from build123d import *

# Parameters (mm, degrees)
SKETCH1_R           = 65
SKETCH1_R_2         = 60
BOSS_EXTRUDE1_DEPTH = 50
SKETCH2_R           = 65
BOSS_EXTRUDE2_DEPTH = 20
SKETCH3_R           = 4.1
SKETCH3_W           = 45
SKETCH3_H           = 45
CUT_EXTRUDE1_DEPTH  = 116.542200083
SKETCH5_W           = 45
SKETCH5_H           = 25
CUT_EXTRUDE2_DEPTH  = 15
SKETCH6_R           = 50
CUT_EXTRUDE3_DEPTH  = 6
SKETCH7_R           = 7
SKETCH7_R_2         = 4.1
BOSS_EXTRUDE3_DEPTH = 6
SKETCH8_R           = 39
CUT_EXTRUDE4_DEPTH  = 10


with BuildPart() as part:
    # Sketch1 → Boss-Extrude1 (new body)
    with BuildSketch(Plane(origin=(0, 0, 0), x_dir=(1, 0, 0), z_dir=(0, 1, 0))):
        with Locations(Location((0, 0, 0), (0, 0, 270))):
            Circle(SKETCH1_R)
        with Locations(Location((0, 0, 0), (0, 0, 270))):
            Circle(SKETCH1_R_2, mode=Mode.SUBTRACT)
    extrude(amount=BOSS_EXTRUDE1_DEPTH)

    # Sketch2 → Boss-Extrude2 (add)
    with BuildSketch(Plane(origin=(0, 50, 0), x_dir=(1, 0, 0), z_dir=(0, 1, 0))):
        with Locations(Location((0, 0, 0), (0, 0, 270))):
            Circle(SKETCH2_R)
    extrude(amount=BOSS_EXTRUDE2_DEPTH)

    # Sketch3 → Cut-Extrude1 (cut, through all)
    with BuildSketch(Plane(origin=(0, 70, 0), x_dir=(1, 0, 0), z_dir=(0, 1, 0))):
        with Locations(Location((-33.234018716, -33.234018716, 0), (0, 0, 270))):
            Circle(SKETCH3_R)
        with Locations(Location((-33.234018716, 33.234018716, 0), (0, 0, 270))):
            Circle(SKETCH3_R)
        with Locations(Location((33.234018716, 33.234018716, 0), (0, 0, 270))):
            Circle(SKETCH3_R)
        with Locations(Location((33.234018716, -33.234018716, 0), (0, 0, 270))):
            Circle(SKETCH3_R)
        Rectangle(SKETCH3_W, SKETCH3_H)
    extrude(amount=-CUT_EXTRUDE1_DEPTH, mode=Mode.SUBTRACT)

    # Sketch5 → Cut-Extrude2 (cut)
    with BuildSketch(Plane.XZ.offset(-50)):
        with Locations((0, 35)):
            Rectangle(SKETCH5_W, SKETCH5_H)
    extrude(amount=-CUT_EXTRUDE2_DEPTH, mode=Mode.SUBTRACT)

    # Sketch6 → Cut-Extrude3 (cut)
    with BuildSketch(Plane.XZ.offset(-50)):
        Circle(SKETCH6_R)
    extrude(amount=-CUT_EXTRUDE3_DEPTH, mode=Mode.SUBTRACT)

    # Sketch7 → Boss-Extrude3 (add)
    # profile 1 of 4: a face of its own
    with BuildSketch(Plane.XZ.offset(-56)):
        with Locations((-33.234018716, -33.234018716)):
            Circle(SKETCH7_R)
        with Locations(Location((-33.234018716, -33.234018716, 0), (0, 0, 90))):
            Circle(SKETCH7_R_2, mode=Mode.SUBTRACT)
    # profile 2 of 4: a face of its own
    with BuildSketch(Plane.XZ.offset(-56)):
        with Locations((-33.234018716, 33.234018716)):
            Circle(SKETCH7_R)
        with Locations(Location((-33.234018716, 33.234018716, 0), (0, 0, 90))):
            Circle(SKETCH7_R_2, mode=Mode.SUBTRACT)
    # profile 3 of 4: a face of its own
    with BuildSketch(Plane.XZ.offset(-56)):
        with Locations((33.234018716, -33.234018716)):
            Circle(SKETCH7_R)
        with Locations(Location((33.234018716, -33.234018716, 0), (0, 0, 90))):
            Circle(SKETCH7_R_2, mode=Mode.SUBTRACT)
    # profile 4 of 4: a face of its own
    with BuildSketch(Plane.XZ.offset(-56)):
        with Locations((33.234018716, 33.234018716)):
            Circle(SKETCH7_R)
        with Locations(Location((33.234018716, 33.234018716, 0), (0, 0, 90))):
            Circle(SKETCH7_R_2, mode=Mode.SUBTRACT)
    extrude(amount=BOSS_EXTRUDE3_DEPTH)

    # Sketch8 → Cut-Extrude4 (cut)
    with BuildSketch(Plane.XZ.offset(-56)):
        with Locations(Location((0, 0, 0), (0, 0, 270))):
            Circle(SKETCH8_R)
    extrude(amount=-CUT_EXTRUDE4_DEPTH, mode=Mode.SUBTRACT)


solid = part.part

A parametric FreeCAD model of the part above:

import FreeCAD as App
import Part
import Sketcher
from FreeCAD import Vector

doc = App.newDocument("Part")
body = doc.addObject("PartDesign::Body", "Body")

# Sketch on XZ plane
sketch1 = body.newObject("Sketcher::SketchObject", "Sketch")
sketch1.AttachmentSupport = (doc.getObject("XZ_Plane"), [""])
sketch1.MapMode = "FlatFace"
sketch1.addGeometry([
    Part.Circle(Vector(0, 0, 0), Vector(0, 0, 1), 65),
    Part.Circle(Vector(0, 0, 0), Vector(0, 0, 1), 60),
], False)
sketch1.addConstraint([
    Sketcher.Constraint("Coincident", 0, 3, -1, 1),
    Sketcher.Constraint("Coincident", 1, 3, -1, 1),
    Sketcher.Constraint("Diameter", 0, 130.0),
    Sketcher.Constraint("Diameter", 1, 120.0),
])
pad1 = body.newObject("PartDesign::Pad", "Pad")
pad1.Profile = sketch1
pad1.Length = 50
pad1.Reversed = True

# Sketch on XZ plane
sketch2 = body.newObject("Sketcher::SketchObject", "Sketch001")
sketch2.AttachmentSupport = (doc.getObject("XZ_Plane"), [""])
sketch2.MapMode = "FlatFace"
sketch2.AttachmentOffset = App.Placement(Vector(0, 0, -50), App.Rotation())
sketch2.addGeometry(Part.Circle(Vector(0, 0, 0), Vector(0, 0, 1), 65), False)
sketch2.addConstraint([
    Sketcher.Constraint("Coincident", 0, 3, -1, 1),
    Sketcher.Constraint("Diameter", 0, 130.0),
])
pad2 = body.newObject("PartDesign::Pad", "Pad001")
pad2.Profile = sketch2
pad2.Length = 20
pad2.Reversed = True

# Sketch on XZ plane
sketch3 = body.newObject("Sketcher::SketchObject", "Sketch002")
sketch3.AttachmentSupport = (doc.getObject("XZ_Plane"), [""])
sketch3.MapMode = "FlatFace"
sketch3.AttachmentOffset = App.Placement(Vector(0, 0, -70), App.Rotation())
sketch3.addGeometry([
    Part.Circle(Vector(-33.2, 33.2, 0), Vector(0, 0, 1), 4.1),  # 0
    Part.Circle(Vector(-33.2, -33.2, 0), Vector(0, 0, 1), 4.1),  # 1
    Part.Circle(Vector(33.2, -33.2, 0), Vector(0, 0, 1), 4.1),  # 2
    Part.Circle(Vector(33.2, 33.2, 0), Vector(0, 0, 1), 4.1),  # 3
    Part.LineSegment(Vector(-22.5, -22.5, 0), Vector(-22.5, 22.5, 0)),  # 4
    Part.LineSegment(Vector(-22.5, 22.5, 0), Vector(22.5, 22.5, 0)),  # 5
    Part.LineSegment(Vector(22.5, 22.5, 0), Vector(22.5, -22.5, 0)),  # 6
    Part.LineSegment(Vector(22.5, -22.5, 0), Vector(-22.5, -22.5, 0)),  # 7
], False)
sketch3.addConstraint([
    Sketcher.Constraint("Coincident", 4, 2, 5, 1),
    Sketcher.Constraint("Coincident", 5, 2, 6, 1),
    Sketcher.Constraint("Coincident", 6, 2, 7, 1),
    Sketcher.Constraint("Coincident", 7, 2, 4, 1),
    Sketcher.Constraint("Vertical", 4),
    Sketcher.Constraint("Horizontal", 5),
    Sketcher.Constraint("Vertical", 6),
    Sketcher.Constraint("Horizontal", 7),
    Sketcher.Constraint("Equal", 0, 1),
    Sketcher.Constraint("Equal", 1, 2),
    Sketcher.Constraint("Equal", 2, 3),
    Sketcher.Constraint("Symmetric", 0, 3, 2, 3, -1, 1),
    Sketcher.Constraint("Symmetric", 1, 3, 3, 3, -1, 1),
    Sketcher.Constraint("Symmetric", 4, 2, 6, 2, -1, 1),
    Sketcher.Constraint("Symmetric", 1, 3, 2, 3, -2),
    Sketcher.Constraint("Equal", 7, 4),
    Sketcher.Constraint("Diameter", 0, 8.2),
    Sketcher.Constraint("DistanceX", 5, 1, 5, 2, 45.0),
    Sketcher.Constraint("DistanceX", 0, 3, -1, 1, 33.234019),
    Sketcher.Constraint("DistanceY", -1, 1, 0, 3, 33.234019),
])
pocket1 = body.newObject("PartDesign::Pocket", "Pocket")
pocket1.Profile = sketch3
pocket1.Type = "ThroughAll"
pocket1.Reversed = True

# Sketch on XZ plane
sketch4 = body.newObject("Sketcher::SketchObject", "Sketch003")
sketch4.AttachmentSupport = (doc.getObject("XZ_Plane"), [""])
sketch4.MapMode = "FlatFace"
sketch4.AttachmentOffset = App.Placement(Vector(0, 0, -50), App.Rotation())
sketch4.addGeometry([
    Part.LineSegment(Vector(-22, 48, 0), Vector(-22, 22, 0)),
    Part.LineSegment(Vector(-22, 22, 0), Vector(22, 22, 0)),
    Part.LineSegment(Vector(22, 22, 0), Vector(22, 48, 0)),
    Part.LineSegment(Vector(22, 48, 0), Vector(-22, 48, 0)),
], False)
sketch4.addConstraint([
    Sketcher.Constraint("Coincident", 0, 2, 1, 1),
    Sketcher.Constraint("Coincident", 1, 2, 2, 1),
    Sketcher.Constraint("Coincident", 2, 2, 3, 1),
    Sketcher.Constraint("Coincident", 3, 2, 0, 1),
    Sketcher.Constraint("Vertical", 0),
    Sketcher.Constraint("Horizontal", 1),
    Sketcher.Constraint("Vertical", 2),
    Sketcher.Constraint("Horizontal", 3),
    Sketcher.Constraint("DistanceX", 1, 1, 1, 2, 45.0),
    Sketcher.Constraint("DistanceY", 0, 2, 0, 1, 25.0),
    Sketcher.Constraint("DistanceX", 0, 2, -1, 1, 22.5),
    Sketcher.Constraint("DistanceY", -1, 1, 0, 2, 22.5),
])
pocket2 = body.newObject("PartDesign::Pocket", "Pocket001")
pocket2.Profile = sketch4
pocket2.Length = 15

# Sketch on XZ plane
sketch5 = body.newObject("Sketcher::SketchObject", "Sketch004")
sketch5.AttachmentSupport = (doc.getObject("XZ_Plane"), [""])
sketch5.MapMode = "FlatFace"
sketch5.AttachmentOffset = App.Placement(Vector(0, 0, -50), App.Rotation())
sketch5.addGeometry(Part.Circle(Vector(0, 0, 0), Vector(0, 0, 1), 50), False)
sketch5.addConstraint([
    Sketcher.Constraint("Coincident", 0, 3, -1, 1),
    Sketcher.Constraint("Diameter", 0, 100.0),
])
pocket3 = body.newObject("PartDesign::Pocket", "Pocket002")
pocket3.Profile = sketch5
pocket3.Length = 6

# Sketch on XZ plane
sketch6 = body.newObject("Sketcher::SketchObject", "Sketch005")
sketch6.AttachmentSupport = (doc.getObject("XZ_Plane"), [""])
sketch6.MapMode = "FlatFace"
sketch6.AttachmentOffset = App.Placement(Vector(0, 0, -56), App.Rotation())
sketch6.addGeometry([
    Part.Circle(Vector(-33.2, -33.2, 0), Vector(0, 0, 1), 7),  # 0
    Part.Circle(Vector(-33.2, -33.2, 0), Vector(0, 0, 1), 4.1),  # 1
    Part.Circle(Vector(-33.2, 33.2, 0), Vector(0, 0, 1), 7),  # 2
    Part.Circle(Vector(-33.2, 33.2, 0), Vector(0, 0, 1), 4.1),  # 3
    Part.Circle(Vector(33.2, -33.2, 0), Vector(0, 0, 1), 7),  # 4
    Part.Circle(Vector(33.2, -33.2, 0), Vector(0, 0, 1), 4.1),  # 5
    Part.Circle(Vector(33.2, 33.2, 0), Vector(0, 0, 1), 7),  # 6
    Part.Circle(Vector(33.2, 33.2, 0), Vector(0, 0, 1), 4.1),  # 7
], False)
sketch6.addConstraint([
    Sketcher.Constraint("Coincident", 1, 3, 0, 3),
    Sketcher.Constraint("Coincident", 3, 3, 2, 3),
    Sketcher.Constraint("Coincident", 5, 3, 4, 3),
    Sketcher.Constraint("Coincident", 7, 3, 6, 3),
    Sketcher.Constraint("Equal", 0, 2),
    Sketcher.Constraint("Equal", 1, 3),
    Sketcher.Constraint("Equal", 2, 4),
    Sketcher.Constraint("Equal", 3, 5),
    Sketcher.Constraint("Equal", 4, 6),
    Sketcher.Constraint("Equal", 5, 7),
    Sketcher.Constraint("Symmetric", 2, 3, 4, 3, -1, 1),
    Sketcher.Constraint("Symmetric", 0, 3, 6, 3, -1, 1),
    Sketcher.Constraint("Symmetric", 0, 3, 4, 3, -2),
    Sketcher.Constraint("Diameter", 0, 14.0),
    Sketcher.Constraint("Diameter", 1, 8.2),
    Sketcher.Constraint("DistanceX", 0, 3, -1, 1, 33.234019),
    Sketcher.Constraint("DistanceY", 0, 3, -1, 1, 33.234019),
])
pad3 = body.newObject("PartDesign::Pad", "Pad002")
pad3.Profile = sketch6
pad3.Length = 6

# Sketch on XZ plane
sketch7 = body.newObject("Sketcher::SketchObject", "Sketch006")
sketch7.AttachmentSupport = (doc.getObject("XZ_Plane"), [""])
sketch7.MapMode = "FlatFace"
sketch7.AttachmentOffset = App.Placement(Vector(0, 0, -56), App.Rotation())
sketch7.addGeometry(Part.Circle(Vector(0, 0, 0), Vector(0, 0, 1), 39), False)
sketch7.addConstraint([
    Sketcher.Constraint("Coincident", 0, 3, -1, 1),
    Sketcher.Constraint("Diameter", 0, 78.0),
])
pocket4 = body.newObject("PartDesign::Pocket", "Pocket003")
pocket4.Profile = sketch7
pocket4.Length = 10

doc.recompute()
